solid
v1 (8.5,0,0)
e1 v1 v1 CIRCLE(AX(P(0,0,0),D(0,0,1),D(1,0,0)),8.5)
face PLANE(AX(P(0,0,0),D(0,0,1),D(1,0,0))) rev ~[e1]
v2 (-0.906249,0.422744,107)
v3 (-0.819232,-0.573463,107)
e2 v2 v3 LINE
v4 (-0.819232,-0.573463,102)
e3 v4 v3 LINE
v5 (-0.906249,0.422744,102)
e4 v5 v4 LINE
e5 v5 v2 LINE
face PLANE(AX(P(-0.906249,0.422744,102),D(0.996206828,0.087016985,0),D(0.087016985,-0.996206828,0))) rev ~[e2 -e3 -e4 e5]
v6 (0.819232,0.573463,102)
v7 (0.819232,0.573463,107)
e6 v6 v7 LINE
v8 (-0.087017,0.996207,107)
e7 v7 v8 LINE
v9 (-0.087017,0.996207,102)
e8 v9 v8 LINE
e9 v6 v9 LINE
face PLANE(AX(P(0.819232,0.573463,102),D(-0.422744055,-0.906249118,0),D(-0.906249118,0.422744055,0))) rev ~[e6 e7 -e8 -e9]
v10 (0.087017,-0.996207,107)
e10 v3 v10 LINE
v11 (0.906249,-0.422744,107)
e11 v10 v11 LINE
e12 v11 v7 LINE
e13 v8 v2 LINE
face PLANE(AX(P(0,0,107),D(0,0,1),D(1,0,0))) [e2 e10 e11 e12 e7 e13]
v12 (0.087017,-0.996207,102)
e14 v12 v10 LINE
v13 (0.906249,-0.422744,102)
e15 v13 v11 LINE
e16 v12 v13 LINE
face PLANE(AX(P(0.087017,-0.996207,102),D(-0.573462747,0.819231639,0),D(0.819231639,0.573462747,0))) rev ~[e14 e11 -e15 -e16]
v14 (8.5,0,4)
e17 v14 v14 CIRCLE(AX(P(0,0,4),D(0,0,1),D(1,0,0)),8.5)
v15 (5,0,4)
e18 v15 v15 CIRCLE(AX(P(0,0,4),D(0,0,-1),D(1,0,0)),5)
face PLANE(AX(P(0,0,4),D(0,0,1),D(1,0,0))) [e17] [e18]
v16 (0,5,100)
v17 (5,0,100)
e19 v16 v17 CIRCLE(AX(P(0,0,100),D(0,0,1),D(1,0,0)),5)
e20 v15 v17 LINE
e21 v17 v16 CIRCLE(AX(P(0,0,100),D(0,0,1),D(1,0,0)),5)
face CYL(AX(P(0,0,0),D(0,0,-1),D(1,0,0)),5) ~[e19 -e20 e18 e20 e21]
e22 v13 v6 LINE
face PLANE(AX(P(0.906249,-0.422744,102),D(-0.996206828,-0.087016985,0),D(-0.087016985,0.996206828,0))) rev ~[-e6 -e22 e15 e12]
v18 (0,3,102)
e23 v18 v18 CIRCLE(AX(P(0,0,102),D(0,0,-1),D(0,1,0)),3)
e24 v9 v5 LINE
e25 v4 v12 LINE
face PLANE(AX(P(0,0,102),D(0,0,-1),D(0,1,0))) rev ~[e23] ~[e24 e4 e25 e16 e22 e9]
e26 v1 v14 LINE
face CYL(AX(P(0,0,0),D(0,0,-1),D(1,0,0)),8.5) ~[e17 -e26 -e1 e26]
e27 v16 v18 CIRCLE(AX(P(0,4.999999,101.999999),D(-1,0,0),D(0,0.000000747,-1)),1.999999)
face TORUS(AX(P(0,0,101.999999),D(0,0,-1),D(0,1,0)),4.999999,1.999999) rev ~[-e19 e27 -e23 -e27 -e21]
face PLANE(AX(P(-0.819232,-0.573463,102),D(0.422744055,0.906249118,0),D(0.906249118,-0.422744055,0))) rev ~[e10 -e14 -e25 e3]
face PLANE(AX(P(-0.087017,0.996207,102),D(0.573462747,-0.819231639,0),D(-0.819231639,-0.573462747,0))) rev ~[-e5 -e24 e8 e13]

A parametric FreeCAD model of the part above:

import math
import FreeCAD as App
import Part
import Sketcher
from FreeCAD import Vector

doc = App.newDocument("Part")
body = doc.addObject("PartDesign::Body", "Body")

sketch1 = body.newObject("Sketcher::SketchObject", "Sketch")
sketch1.AttachmentSupport = (doc.getObject("XY_Plane"), [""])
sketch1.MapMode = "FlatFace"
sketch1.addGeometry(Part.Circle(Vector(0, 0, 0), Vector(0, 0, 1), 8.5), False)
sketch1.addConstraint(Sketcher.Constraint("Coincident", 0, 3, -1, 1))
sketch1.addConstraint(Sketcher.Constraint("Diameter", 0, 17.0))
pad1 = body.newObject("PartDesign::Pad", "Pad")
pad1.Profile = sketch1
pad1.Length = 4

sketch2 = body.newObject("Sketcher::SketchObject", "Sketch001")
sketch2.AttachmentSupport = (doc.getObject("XY_Plane"), [""])
sketch2.MapMode = "FlatFace"
sketch2.addGeometry(Part.Circle(Vector(0, 0, 0), Vector(0, 0, 1), 5), False)
sketch2.addConstraint(Sketcher.Constraint("Coincident", 0, 3, -1, 1))
sketch2.addConstraint(Sketcher.Constraint("Diameter", 0, 10.0))
pad2 = body.newObject("PartDesign::Pad", "Pad001")
pad2.Profile = sketch2
pad2.Length = 100

sketch3 = body.newObject("Sketcher::SketchObject", "Sketch002")
sketch3.AttachmentSupport = (doc.getObject("YZ_Plane"), [""])
sketch3.MapMode = "FlatFace"
sketch3.addGeometry(Part.LineSegment(Vector(3, 102, 0), Vector(0, 102, 0)), False)
sketch3.addGeometry(Part.LineSegment(Vector(0, 102, 0), Vector(0, 100, 0)), False)
sketch3.addGeometry(Part.LineSegment(Vector(0, 100, 0), Vector(5, 100, 0)), False)
sketch3.addGeometry(Part.ArcOfCircle(Part.Circle(Vector(4.999999, 101.999999, 0), Vector(0, 0, 1), 1.999999), math.radians(179.999957), math.radians(270.000043)), False)
sketch3.addConstraint(Sketcher.Constraint("Coincident", 0, 2, 1, 1))
sketch3.addConstraint(Sketcher.Constraint("Coincident", 1, 2, 2, 1))
sketch3.addConstraint(Sketcher.Constraint("Tangent", 2, 2, 3, 2))
sketch3.addConstraint(Sketcher.Constraint("Coincident", 3, 1, 0, 1))
sketch3.addConstraint(Sketcher.Constraint("Horizontal", 0))
sketch3.addConstraint(Sketcher.Constraint("Vertical", 1))
sketch3.addConstraint(Sketcher.Constraint("Horizontal", 2))
sketch3.addConstraint(Sketcher.Constraint("PointOnObject", 0, 2, -2))
sketch3.addConstraint(Sketcher.Constraint("Horizontal", 3, 3, 0, 2))
sketch3.addConstraint(Sketcher.Constraint("Radius", 3, 1.999999))
sketch3.addConstraint(Sketcher.Constraint("DistanceX", 0, 2, 0, 1, 3.0))
sketch3.addConstraint(Sketcher.Constraint("DistanceY", -1, 1, 3, 3, 101.999999))
revolution = body.newObject("PartDesign::Revolution", "Revolution")
revolution.Profile = sketch3
revolution.ReferenceAxis = (sketch3, ["V_Axis"])
revolution.Angle = 360

sketch4 = body.newObject("Sketcher::SketchObject", "Sketch003")
sketch4.AttachmentSupport = (doc.getObject("XY_Plane"), [""])
sketch4.MapMode = "FlatFace"
sketch4.AttachmentOffset = App.Placement(Vector(0, 0, 102), App.Rotation())
sketch4.addGeometry(Part.LineSegment(Vector(0.087017, -0.996207, 0), Vector(0.906249, -0.422744, 0)), False)
sketch4.addGeometry(Part.LineSegment(Vector(0.906249, -0.422744, 0), Vector(0.819232, 0.573463, 0)), False)
sketch4.addGeometry(Part.LineSegment(Vector(0.819232, 0.573463, 0), Vector(-0.087017, 0.996207, 0)), False)
sketch4.addGeometry(Part.LineSegment(Vector(-0.087017, 0.996207, 0), Vector(-0.906249, 0.422744, 0)), False)
sketch4.addGeometry(Part.LineSegment(Vector(-0.906249, 0.422744, 0), Vector(-0.819232, -0.573463, 0)), False)
sketch4.addGeometry(Part.LineSegment(Vector(-0.819232, -0.573463, 0), Vector(0.087017, -0.996207, 0)), False)
sketch4.addConstraint(Sketcher.Constraint("Coincident", 0, 2, 1, 1))
sketch4.addConstraint(Sketcher.Constraint("Coincident", 1, 2, 2, 1))
sketch4.addConstraint(Sketcher.Constraint("Coincident", 2, 2, 3, 1))
sketch4.addConstraint(Sketcher.Constraint("Coincident", 3, 2, 4, 1))
sketch4.addConstraint(Sketcher.Constraint("Coincident", 4, 2, 5, 1))
sketch4.addConstraint(Sketcher.Constraint("Coincident", 5, 2, 0, 1))
sketch4.addConstraint(Sketcher.Constraint("Symmetric", 0, 2, 3, 2, -1, 1))
sketch4.addConstraint(Sketcher.Constraint("Symmetric", 1, 2, 4, 2, -1, 1))
sketch4.addConstraint(Sketcher.Constraint("Symmetric", 2, 2, 5, 2, -1, 1))
sketch4.addConstraint(Sketcher.Constraint("Equal", 0, 1))
sketch4.addConstraint(Sketcher.Constraint("Equal", 1, 2))
sketch4.addConstraint(Sketcher.Constraint("Distance", 0, 1.0))
sketch4.addConstraint(Sketcher.Constraint("DistanceX", -1, 1, 0, 2, 0.906249))
sketch4.addConstraint(Sketcher.Constraint("DistanceX", -1, 1, 1, 2, 0.819232))
sketch4.addConstraint(Sketcher.Constraint("DistanceX", 2, 2, 1, 2, 0.906249))
pad3 = body.newObject("PartDesign::Pad", "Pad002")
pad3.Profile = sketch4
pad3.Length = 5

doc.recompute()
